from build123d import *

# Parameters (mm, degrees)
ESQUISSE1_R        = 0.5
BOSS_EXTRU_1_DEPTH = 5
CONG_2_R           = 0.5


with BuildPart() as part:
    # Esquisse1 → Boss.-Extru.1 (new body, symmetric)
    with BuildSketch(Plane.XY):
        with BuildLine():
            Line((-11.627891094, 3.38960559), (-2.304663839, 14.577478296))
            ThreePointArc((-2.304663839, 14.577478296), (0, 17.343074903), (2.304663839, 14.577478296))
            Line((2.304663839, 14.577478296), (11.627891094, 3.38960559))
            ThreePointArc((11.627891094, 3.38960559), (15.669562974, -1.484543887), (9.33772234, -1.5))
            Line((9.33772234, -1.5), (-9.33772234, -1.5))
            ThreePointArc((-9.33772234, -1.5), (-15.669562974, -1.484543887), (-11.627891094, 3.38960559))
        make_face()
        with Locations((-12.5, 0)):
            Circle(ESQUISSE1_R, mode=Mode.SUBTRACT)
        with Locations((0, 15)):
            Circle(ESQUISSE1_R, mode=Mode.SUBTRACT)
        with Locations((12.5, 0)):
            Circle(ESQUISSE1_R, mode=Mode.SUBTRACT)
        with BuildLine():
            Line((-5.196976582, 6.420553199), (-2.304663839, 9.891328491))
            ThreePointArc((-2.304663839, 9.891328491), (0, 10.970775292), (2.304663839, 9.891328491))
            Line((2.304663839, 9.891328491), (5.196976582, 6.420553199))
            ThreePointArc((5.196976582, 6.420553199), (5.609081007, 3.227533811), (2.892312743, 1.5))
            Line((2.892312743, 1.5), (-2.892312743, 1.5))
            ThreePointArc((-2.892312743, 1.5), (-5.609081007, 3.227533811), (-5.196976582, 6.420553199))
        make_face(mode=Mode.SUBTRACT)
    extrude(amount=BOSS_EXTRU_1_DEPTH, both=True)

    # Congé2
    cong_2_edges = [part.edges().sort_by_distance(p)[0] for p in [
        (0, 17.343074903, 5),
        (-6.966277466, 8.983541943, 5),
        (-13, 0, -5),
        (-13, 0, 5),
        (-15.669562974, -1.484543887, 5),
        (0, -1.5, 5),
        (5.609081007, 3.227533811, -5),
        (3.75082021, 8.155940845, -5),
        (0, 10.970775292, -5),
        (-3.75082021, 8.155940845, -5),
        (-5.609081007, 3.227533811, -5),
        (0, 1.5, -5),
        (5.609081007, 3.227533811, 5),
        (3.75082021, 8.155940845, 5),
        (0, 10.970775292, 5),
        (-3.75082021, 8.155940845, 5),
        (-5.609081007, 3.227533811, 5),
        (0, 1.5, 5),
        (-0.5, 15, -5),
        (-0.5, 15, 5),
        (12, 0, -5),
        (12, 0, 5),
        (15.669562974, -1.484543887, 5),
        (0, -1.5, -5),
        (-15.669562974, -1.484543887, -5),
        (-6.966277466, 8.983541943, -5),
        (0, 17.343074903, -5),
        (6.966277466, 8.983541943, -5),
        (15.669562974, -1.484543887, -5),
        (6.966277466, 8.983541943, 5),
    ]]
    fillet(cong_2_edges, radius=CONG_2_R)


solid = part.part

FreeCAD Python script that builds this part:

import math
import FreeCAD as App
import Part
import Sketcher
from FreeCAD import Vector


def edges_at(feature, points):
    """Names of the edges that pass closest to the given points."""
    edges = feature.Shape.Edges
    near = lambda p: min(range(len(edges)), key=lambda i: edges[i].distToShape(Part.Vertex(*p))[0])
    return sorted({f"Edge{near(p) + 1}" for p in points})

doc = App.newDocument("Part")
body = doc.addObject("PartDesign::Body", "Body")

sketch1 = doc.addObject("Sketcher::SketchObject", "Sketch")
body.addObject(sketch1)
sketch1.AttachmentSupport = (doc.XY_Plane, [""])
sketch1.MapMode = "FlatFace"
sketch1.addGeometry([
    Part.LineSegment(Vector(-2.3, 14.6, 0), Vector(-11.6, 3.4, 0)),
    Part.ArcOfCircle(Part.Circle(Vector(-12.5, 0, 0), Vector(0, 0, 1), 3.5), math.radians(76), math.radians(335)),
    Part.LineSegment(Vector(-9.3, -1.5, 0), Vector(9.3, -1.5, 0)),
    Part.ArcOfCircle(Part.Circle(Vector(12.5, 0, 0), Vector(0, 0, 1), 3.5), math.radians(-155), math.radians(104)),
    Part.LineSegment(Vector(11.6, 3.4, 0), Vector(2.3, 14.6, 0)),
    Part.ArcOfCircle(Part.Circle(Vector(0, 15, 0), Vector(0, 0, 1), 2.3), math.radians(-10), math.radians(190)),
    Part.Circle(Vector(12.5, 0, 0), Vector(0, 0, 1), 0.5),
    Part.Circle(Vector(-12.5, 0, 0), Vector(0, 0, 1), 0.5),
    Part.LineSegment(Vector(-5.2, 6.4, 0), Vector(-2.3, 9.9, 0)),
    Part.ArcOfCircle(Part.Circle(Vector(0, 8, 0), Vector(0, 0, 1), 3), math.radians(40), math.radians(140)),
    Part.LineSegment(Vector(2.3, 9.9, 0), Vector(5.2, 6.4, 0)),
    Part.ArcOfCircle(Part.Circle(Vector(2.9, 4.5, 0), Vector(0, 0, 1), 3), math.radians(-90), math.radians(40)),
    Part.LineSegment(Vector(2.9, 1.5, 0), Vector(-2.9, 1.5, 0)),
    Part.ArcOfCircle(Part.Circle(Vector(-2.9, 4.5, 0), Vector(0, 0, 1), 3), math.radians(140), math.radians(270)),
    Part.Circle(Vector(0, 15, 0), Vector(0, 0, 1), 0.5),
], False)
sketch1.addConstraint([
    Sketcher.Constraint("Coincident", 0, 2, 1, 1),
    Sketcher.Constraint("Coincident", 1, 2, 2, 1),
    Sketcher.Constraint("Coincident", 2, 2, 3, 1),
    Sketcher.Constraint("Coincident", 3, 2, 4, 1),
    Sketcher.Constraint("Coincident", 4, 2, 5, 1),
    Sketcher.Constraint("Coincident", 5, 2, 0, 1),
    Sketcher.Constraint("Tangent", 8, 2, 9, 2),
    Sketcher.Constraint("Tangent", 9, 1, 10, 1),
    Sketcher.Constraint("Tangent", 10, 2, 11, 2),
    Sketcher.Constraint("Tangent", 11, 1, 12, 1),
    Sketcher.Constraint("Tangent", 12, 2, 13, 2),
    Sketcher.Constraint("Tangent", 13, 1, 8, 1),
    Sketcher.Constraint("Horizontal", 2),
    Sketcher.Constraint("Horizontal", 12),
    Sketcher.Constraint("Coincident", 6, 3, 3, 3),
    Sketcher.Constraint("Coincident", 7, 3, 1, 3),
    Sketcher.Constraint("Coincident", 14, 3, 5, 3),
    Sketcher.Constraint("Equal", 1, 3),
    Sketcher.Constraint("Equal", 6, 7),
    Sketcher.Constraint("Equal", 9, 11),
    Sketcher.Constraint("Equal", 11, 13),
    Sketcher.Constraint("Equal", 7, 14),
    Sketcher.Constraint("Symmetric", 1, 3, 3, 3, -1, 1),
    Sketcher.Constraint("Symmetric", 0, 2, 3, 2, -2),
    Sketcher.Constraint("Symmetric", 4, 2, 5, 2, -2),
    Sketcher.Constraint("Symmetric", 8, 2, 9, 1, -2),
    Sketcher.Constraint("Parallel", 0, 8),
    Sketcher.Constraint("Vertical", 5, 2, 8, 2),
    Sketcher.Constraint("Diameter", 6, 1.0),
    Sketcher.Constraint("Radius", 9, 3.0),
    Sketcher.Constraint("Radius", 1, 3.5),
    Sketcher.Constraint("DistanceY", -1, 1, 5, 3, 15.0),
    Sketcher.Constraint("DistanceX", 1, 3, 3, 3, 25.0),
    Sketcher.Constraint("DistanceY", 1, 2, 13, 3, 6.0),
    Sketcher.Constraint("DistanceY", -1, 1, 11, 3, 4.5),
    Sketcher.Constraint("Radius", 5, 2.343075),
    Sketcher.Constraint("DistanceX", 12, 2, 12, 1, 5.784625),
    Sketcher.Constraint("DistanceX", 0, 2, -1, 1, 11.627891),
])
pad1 = doc.addObject("PartDesign::Pad", "Pad")
body.addObject(pad1)
pad1.Profile = sketch1
pad1.Length = 10
pad1.Midplane = True
doc.recompute()

fillet = doc.addObject("PartDesign::Fillet", "Fillet")
body.addObject(fillet)
fillet.Base = (pad1, edges_at(pad1, [
    (0, 17.343, 5),
    (-6.966, 8.984, 5),
    (-13, 0, -5),
    (-13, 0, 5),
    (-15.67, -1.485, 5),
    (0, -1.5, 5),
    (5.609, 3.228, -5),
    (3.751, 8.156, -5),
    (0, 10.971, -5),
    (-3.751, 8.156, -5),
    (-5.609, 3.228, -5),
    (0, 1.5, -5),
    (5.609, 3.228, 5),
    (3.751, 8.156, 5),
    (0, 10.971, 5),
    (-3.751, 8.156, 5),
    (-5.609, 3.228, 5),
    (0, 1.5, 5),
    (-0.5, 15, -5),
    (-0.5, 15, 5),
    (12, 0, -5),
    (12, 0, 5),
    (15.67, -1.485, 5),
    (0, -1.5, -5),
    (-15.67, -1.485, -5),
    (-6.966, 8.984, -5),
    (0, 17.343, -5),
    (6.966, 8.984, -5),
    (15.67, -1.485, -5),
    (6.966, 8.984, 5),
]))
fillet.Radius = 0.5

doc.recompute()
